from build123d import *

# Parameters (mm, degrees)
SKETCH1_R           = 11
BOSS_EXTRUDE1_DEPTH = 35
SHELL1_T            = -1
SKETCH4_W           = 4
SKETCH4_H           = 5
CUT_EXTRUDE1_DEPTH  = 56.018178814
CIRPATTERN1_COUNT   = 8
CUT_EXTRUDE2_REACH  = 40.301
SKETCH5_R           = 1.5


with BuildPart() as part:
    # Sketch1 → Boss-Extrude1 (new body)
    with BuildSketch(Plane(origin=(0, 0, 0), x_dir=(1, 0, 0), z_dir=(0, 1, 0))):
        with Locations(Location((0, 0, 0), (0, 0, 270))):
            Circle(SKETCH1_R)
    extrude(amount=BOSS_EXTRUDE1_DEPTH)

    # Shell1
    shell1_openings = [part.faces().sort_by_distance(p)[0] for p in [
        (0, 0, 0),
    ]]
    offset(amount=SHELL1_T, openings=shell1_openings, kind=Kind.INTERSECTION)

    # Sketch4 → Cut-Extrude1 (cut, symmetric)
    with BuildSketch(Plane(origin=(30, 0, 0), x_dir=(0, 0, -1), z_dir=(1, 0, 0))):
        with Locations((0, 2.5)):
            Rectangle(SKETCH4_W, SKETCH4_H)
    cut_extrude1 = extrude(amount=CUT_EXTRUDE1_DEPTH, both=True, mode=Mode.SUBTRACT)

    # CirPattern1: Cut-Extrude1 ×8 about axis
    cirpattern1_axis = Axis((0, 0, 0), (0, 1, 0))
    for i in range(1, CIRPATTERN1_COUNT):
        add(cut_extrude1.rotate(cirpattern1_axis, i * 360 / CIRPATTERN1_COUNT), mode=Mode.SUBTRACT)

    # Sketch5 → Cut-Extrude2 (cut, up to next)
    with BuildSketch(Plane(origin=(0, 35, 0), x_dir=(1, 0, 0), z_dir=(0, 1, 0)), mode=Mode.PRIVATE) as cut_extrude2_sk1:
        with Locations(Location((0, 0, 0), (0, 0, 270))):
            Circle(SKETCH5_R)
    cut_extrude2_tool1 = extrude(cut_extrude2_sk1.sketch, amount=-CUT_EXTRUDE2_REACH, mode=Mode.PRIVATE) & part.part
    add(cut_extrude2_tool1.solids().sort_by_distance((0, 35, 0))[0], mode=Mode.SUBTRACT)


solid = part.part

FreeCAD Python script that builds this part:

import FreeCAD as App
import Part
import Sketcher
Q = App.Units.Quantity


def faces_at(feature, points):
    """Names of the faces that lie closest to the given points."""
    faces = feature.Shape.Faces
    near = lambda p: min(range(len(faces)), key=lambda i: faces[i].distToShape(Part.Vertex(*p))[0])
    return sorted({f"Face{near(p) + 1}" for p in points})


def add_polygon(sketch, points):
    """Adds a closed chain of lines whose ends are joined by coincident constraints."""
    first, n = sketch.GeometryCount, len(points)
    for a, b in zip(points, points[1:] + points[:1]):
        sketch.addGeometry(Part.LineSegment(App.Vector(*a, 0), App.Vector(*b, 0)), False)
    for i in range(n):
        sketch.addConstraint(Sketcher.Constraint("Coincident", first + i, 2, first + (i + 1) % n, 1))

doc = App.newDocument("Part")
body = doc.addObject("PartDesign::Body", "Body")

# Sketch on XZ plane
sketch1 = body.newObject("Sketcher::SketchObject", "Sketch")
sketch1.AttachmentSupport = (doc.getObject("XZ_Plane"), [""])
sketch1.MapMode = "FlatFace"
sketch1.addGeometry(Part.Circle(App.Vector(0, 0, 0), App.Vector(0, 0, 1), 11), False)
sketch1.addConstraint(Sketcher.Constraint("Coincident", 0, 3, -1, 1))
sketch1.addConstraint(Sketcher.Constraint("Diameter", 0, Q("22 mm")))
pad1 = body.newObject("PartDesign::Pad", "Pad")
pad1.Profile = sketch1
pad1.Length = 35
pad1.Reversed = True
doc.recompute()

thickness = body.newObject("PartDesign::Thickness", "Thickness")
thickness.Base = (pad1, faces_at(pad1, [(0, 0, 0)]))
thickness.Value = 1
thickness.Reversed = True
thickness.Join = "Intersection"

# Sketch on YZ plane
sketch2 = body.newObject("Sketcher::SketchObject", "Sketch001")
sketch2.AttachmentSupport = (doc.getObject("YZ_Plane"), [""])
sketch2.MapMode = "FlatFace"
sketch2.AttachmentOffset = App.Placement(App.Vector(0, 0, 30), App.Rotation())
add_polygon(sketch2, [(5, 2), (0, 2), (0, -2), (5, -2)])  # lines 0-3
sketch2.addConstraint(Sketcher.Constraint("Horizontal", 0))
sketch2.addConstraint(Sketcher.Constraint("Vertical", 1))
sketch2.addConstraint(Sketcher.Constraint("Horizontal", 2))
sketch2.addConstraint(Sketcher.Constraint("Vertical", 3))
sketch2.addConstraint(Sketcher.Constraint("Symmetric", 0, 2, 1, 2, -1, 1))
sketch2.addConstraint(Sketcher.Constraint("DistanceX", 0, 2, 0, 1, Q("5 mm")))
sketch2.addConstraint(Sketcher.Constraint("DistanceY", 1, 2, 1, 1, Q("4 mm")))
pocket1 = body.newObject("PartDesign::Pocket", "Pocket")
pocket1.Profile = sketch2
pocket1.Length = 112.036358
pocket1.Midplane = True
doc.recompute()

polarpattern = body.newObject("PartDesign::PolarPattern", "PolarPattern")
polarpattern.Originals = [pocket1]
polarpattern.Axis = (doc.getObject("Y_Axis"), [""])
polarpattern.Angle = 360
polarpattern.Occurrences = 8
body.Tip = polarpattern

# Sketch on XZ plane
sketch3 = body.newObject("Sketcher::SketchObject", "Sketch002")
sketch3.AttachmentSupport = (doc.getObject("XZ_Plane"), [""])
sketch3.MapMode = "FlatFace"
sketch3.AttachmentOffset = App.Placement(App.Vector(0, 0, -35), App.Rotation())
sketch3.addGeometry(Part.Circle(App.Vector(0, 0, 0), App.Vector(0, 0, 1), 1.5), False)
sketch3.addConstraint(Sketcher.Constraint("Coincident", 0, 3, -1, 1))
sketch3.addConstraint(Sketcher.Constraint("Diameter", 0, Q("3 mm")))
pocket2 = body.newObject("PartDesign::Pocket", "Pocket001")
pocket2.Profile = sketch3
pocket2.Type = "UpToFirst"
pocket2.Reversed = True

doc.recompute()
